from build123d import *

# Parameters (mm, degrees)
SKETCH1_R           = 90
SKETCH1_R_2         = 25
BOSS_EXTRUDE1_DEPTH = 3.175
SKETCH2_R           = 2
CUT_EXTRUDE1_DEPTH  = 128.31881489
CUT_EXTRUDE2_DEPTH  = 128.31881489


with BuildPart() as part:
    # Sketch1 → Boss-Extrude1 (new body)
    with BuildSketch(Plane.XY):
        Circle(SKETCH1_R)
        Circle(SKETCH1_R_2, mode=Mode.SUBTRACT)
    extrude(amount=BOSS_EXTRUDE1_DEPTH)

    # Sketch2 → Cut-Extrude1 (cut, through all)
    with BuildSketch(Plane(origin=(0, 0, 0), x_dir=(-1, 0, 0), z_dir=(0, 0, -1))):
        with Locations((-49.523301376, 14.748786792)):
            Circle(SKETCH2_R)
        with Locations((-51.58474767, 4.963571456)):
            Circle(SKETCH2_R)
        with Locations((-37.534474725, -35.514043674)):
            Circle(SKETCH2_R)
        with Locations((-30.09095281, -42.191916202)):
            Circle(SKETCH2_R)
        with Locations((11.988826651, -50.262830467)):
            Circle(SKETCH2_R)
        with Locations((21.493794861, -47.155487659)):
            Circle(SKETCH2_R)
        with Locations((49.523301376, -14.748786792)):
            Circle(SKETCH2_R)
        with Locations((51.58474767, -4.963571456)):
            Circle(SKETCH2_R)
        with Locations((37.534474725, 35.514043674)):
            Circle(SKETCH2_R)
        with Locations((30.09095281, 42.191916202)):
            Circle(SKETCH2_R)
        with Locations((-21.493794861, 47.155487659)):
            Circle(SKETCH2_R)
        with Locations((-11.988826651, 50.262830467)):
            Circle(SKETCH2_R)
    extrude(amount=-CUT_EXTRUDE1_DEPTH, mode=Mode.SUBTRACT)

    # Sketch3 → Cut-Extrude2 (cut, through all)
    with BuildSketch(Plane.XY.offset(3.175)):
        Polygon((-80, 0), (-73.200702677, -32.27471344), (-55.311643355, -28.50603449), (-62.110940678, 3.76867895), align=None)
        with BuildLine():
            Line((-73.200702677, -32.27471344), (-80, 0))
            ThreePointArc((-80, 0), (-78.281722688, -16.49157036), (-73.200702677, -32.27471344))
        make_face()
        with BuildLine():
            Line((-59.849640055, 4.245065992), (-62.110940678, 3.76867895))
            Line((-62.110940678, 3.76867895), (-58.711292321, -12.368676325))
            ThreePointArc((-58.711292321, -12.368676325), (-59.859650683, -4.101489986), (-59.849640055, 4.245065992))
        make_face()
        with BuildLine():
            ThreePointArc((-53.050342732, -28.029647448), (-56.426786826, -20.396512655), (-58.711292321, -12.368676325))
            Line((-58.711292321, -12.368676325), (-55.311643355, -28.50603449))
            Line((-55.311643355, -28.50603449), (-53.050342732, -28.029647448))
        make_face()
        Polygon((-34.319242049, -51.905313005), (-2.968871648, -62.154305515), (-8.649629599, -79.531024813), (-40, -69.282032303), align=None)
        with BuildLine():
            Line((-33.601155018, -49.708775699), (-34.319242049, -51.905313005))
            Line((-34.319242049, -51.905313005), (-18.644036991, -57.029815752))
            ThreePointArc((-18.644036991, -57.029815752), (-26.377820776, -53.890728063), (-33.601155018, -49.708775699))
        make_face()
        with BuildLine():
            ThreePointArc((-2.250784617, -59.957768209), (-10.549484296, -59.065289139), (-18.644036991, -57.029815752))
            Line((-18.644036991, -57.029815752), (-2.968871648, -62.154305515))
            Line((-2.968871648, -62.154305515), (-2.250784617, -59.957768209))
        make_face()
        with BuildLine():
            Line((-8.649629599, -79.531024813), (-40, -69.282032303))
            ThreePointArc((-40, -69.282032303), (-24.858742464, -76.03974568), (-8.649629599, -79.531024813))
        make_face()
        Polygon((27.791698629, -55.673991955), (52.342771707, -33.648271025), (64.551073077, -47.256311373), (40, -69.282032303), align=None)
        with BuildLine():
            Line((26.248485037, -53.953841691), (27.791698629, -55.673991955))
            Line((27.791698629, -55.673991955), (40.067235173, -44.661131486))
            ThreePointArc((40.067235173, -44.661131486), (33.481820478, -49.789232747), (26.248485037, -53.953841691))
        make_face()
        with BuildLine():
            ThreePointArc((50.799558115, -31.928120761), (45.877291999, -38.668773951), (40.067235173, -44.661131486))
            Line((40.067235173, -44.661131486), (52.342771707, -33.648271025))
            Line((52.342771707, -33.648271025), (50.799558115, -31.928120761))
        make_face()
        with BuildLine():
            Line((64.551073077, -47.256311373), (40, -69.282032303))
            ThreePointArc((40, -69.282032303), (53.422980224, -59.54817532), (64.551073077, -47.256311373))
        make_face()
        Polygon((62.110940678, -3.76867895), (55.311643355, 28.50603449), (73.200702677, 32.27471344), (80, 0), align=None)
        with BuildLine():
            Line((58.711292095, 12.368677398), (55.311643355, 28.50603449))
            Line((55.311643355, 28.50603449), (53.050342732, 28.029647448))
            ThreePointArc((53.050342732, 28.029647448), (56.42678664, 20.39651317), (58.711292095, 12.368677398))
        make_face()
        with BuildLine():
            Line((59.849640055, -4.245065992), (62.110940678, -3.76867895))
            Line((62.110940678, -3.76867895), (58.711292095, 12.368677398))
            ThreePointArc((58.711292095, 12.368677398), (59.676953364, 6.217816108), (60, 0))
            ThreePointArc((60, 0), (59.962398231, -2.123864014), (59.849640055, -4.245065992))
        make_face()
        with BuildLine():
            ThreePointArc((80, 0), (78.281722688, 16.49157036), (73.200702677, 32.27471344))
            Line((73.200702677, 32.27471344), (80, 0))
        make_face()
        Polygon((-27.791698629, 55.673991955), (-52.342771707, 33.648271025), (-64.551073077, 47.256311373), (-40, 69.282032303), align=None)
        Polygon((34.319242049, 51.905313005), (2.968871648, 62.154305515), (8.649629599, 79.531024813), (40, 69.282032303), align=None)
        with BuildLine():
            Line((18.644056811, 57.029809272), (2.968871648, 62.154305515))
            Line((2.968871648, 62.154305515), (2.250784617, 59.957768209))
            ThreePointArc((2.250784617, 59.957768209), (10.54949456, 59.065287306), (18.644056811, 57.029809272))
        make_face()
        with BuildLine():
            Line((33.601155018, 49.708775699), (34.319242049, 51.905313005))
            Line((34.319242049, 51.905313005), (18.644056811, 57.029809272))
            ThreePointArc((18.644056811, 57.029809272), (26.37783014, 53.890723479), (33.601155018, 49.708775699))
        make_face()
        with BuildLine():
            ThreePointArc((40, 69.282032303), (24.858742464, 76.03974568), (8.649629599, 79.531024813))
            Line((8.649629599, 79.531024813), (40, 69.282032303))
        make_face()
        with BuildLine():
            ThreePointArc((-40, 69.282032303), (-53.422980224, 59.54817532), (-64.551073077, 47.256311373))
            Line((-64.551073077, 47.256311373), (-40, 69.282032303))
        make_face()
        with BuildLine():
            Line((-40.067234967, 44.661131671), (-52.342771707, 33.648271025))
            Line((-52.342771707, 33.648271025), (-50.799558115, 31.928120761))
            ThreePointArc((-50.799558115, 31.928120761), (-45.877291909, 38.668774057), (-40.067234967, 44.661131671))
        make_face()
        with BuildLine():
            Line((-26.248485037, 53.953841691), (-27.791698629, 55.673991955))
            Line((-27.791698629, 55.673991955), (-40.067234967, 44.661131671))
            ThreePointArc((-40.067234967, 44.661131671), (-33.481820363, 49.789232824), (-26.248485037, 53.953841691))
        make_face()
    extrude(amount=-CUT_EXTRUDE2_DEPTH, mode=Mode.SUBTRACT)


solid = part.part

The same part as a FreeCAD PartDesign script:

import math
import FreeCAD as App
import Part
import Sketcher
Q = App.Units.Quantity

doc = App.newDocument("Part")
params = doc.addObject("Spreadsheet::Sheet", "Params")
for row, (alias, value) in enumerate([
    ("sketch1_diameter", "180 mm"),
    ("sketch1_diameter2", "50 mm"),
    ("pad1_length", "3.175 mm"),
    ("sketch2_diameter", "4 mm"),
    ("sketch3_radius", "60 mm"),
    ("sketch3_radius2", "80 mm"),
], start=1):
    params.set(f"A{row}", alias)
    params.set(f"B{row}", "=" + value)
    params.setAlias(f"B{row}", alias)

body = doc.addObject("PartDesign::Body", "Body")

sketch1 = body.newObject("Sketcher::SketchObject", "Sketch")
sketch1.AttachmentSupport = (doc.getObject("XY_Plane"), [""])
sketch1.MapMode = "FlatFace"
sketch1.addGeometry(Part.Circle(App.Vector(0, 0, 0), App.Vector(0, 0, 1), 90), False)
sketch1.addGeometry(Part.Circle(App.Vector(0, 0, 0), App.Vector(0, 0, 1), 25), False)
sketch1.addConstraint(Sketcher.Constraint("Coincident", 0, 3, -1, 1))
sketch1.addConstraint(Sketcher.Constraint("Coincident", 1, 3, -1, 1))
sketch1.addConstraint(Sketcher.Constraint("Diameter", 0, Q("180 mm")))
sketch1.addConstraint(Sketcher.Constraint("Diameter", 1, Q("50 mm")))
sketch1.setExpression("Constraints[2]", "Params.sketch1_diameter")
sketch1.setExpression("Constraints[3]", "Params.sketch1_diameter2")
pad1 = body.newObject("PartDesign::Pad", "Pad")
pad1.Profile = sketch1
pad1.setExpression("Length", "Params.pad1_length")

sketch2 = body.newObject("Sketcher::SketchObject", "Sketch001")
sketch2.AttachmentSupport = (doc.getObject("XY_Plane"), [""])
sketch2.MapMode = "FlatFace"
sketch2.addGeometry(Part.Circle(App.Vector(49.5, 14.7, 0), App.Vector(0, 0, 1), 2), False)
sketch2.addGeometry(Part.Circle(App.Vector(51.6, 5, 0), App.Vector(0, 0, 1), 2), False)
sketch2.addGeometry(Part.Circle(App.Vector(37.5, -35.5, 0), App.Vector(0, 0, 1), 2), False)
sketch2.addGeometry(Part.Circle(App.Vector(30.1, -42.2, 0), App.Vector(0, 0, 1), 2), False)
sketch2.addGeometry(Part.Circle(App.Vector(-12, -50.3, 0), App.Vector(0, 0, 1), 2), False)
sketch2.addGeometry(Part.Circle(App.Vector(-21.5, -47.2, 0), App.Vector(0, 0, 1), 2), False)
sketch2.addGeometry(Part.Circle(App.Vector(-49.5, -14.7, 0), App.Vector(0, 0, 1), 2), False)
sketch2.addGeometry(Part.Circle(App.Vector(-51.6, -5, 0), App.Vector(0, 0, 1), 2), False)
sketch2.addGeometry(Part.Circle(App.Vector(-37.5, 35.5, 0), App.Vector(0, 0, 1), 2), False)
sketch2.addGeometry(Part.Circle(App.Vector(-30.1, 42.2, 0), App.Vector(0, 0, 1), 2), False)
sketch2.addGeometry(Part.Circle(App.Vector(21.5, 47.2, 0), App.Vector(0, 0, 1), 2), False)
sketch2.addGeometry(Part.Circle(App.Vector(12, 50.3, 0), App.Vector(0, 0, 1), 2), False)
sketch2.addConstraint(Sketcher.Constraint("Equal", 0, 1))
sketch2.addConstraint(Sketcher.Constraint("Equal", 1, 2))
sketch2.addConstraint(Sketcher.Constraint("Equal", 2, 3))
sketch2.addConstraint(Sketcher.Constraint("Equal", 3, 4))
sketch2.addConstraint(Sketcher.Constraint("Equal", 4, 5))
sketch2.addConstraint(Sketcher.Constraint("Equal", 5, 6))
sketch2.addConstraint(Sketcher.Constraint("Equal", 6, 7))
sketch2.addConstraint(Sketcher.Constraint("Equal", 7, 8))
sketch2.addConstraint(Sketcher.Constraint("Equal", 8, 9))
sketch2.addConstraint(Sketcher.Constraint("Equal", 9, 10))
sketch2.addConstraint(Sketcher.Constraint("Equal", 10, 11))
sketch2.addConstraint(Sketcher.Constraint("Symmetric", 0, 3, 6, 3, -1, 1))
sketch2.addConstraint(Sketcher.Constraint("Symmetric", 1, 3, 7, 3, -1, 1))
sketch2.addConstraint(Sketcher.Constraint("Symmetric", 2, 3, 8, 3, -1, 1))
sketch2.addConstraint(Sketcher.Constraint("Symmetric", 3, 3, 9, 3, -1, 1))
sketch2.addConstraint(Sketcher.Constraint("Symmetric", 5, 3, 10, 3, -1, 1))
sketch2.addConstraint(Sketcher.Constraint("Symmetric", 4, 3, 11, 3, -1, 1))
sketch2.addConstraint(Sketcher.Constraint("Diameter", 0, Q("4 mm")))
sketch2.addConstraint(Sketcher.Constraint("DistanceX", -1, 1, 0, 3, Q("49.523301 mm")))
sketch2.addConstraint(Sketcher.Constraint("DistanceX", 4, 3, 2, 3, Q("49.523301 mm")))
sketch2.addConstraint(Sketcher.Constraint("DistanceY", 4, 3, 1, 3, Q("55.226402 mm")))
sketch2.addConstraint(Sketcher.Constraint("DistanceY", 5, 3, 6, 3, Q("32.406701 mm")))
sketch2.addConstraint(Sketcher.Constraint("DistanceX", 7, 3, 3, 3, Q("81.6757 mm")))
sketch2.addConstraint(Sketcher.Constraint("DistanceY", -1, 1, 1, 3, Q("4.963571 mm")))
sketch2.addConstraint(Sketcher.Constraint("DistanceY", 2, 3, 0, 3, Q("50.26283 mm")))
sketch2.addConstraint(Sketcher.Constraint("DistanceX", 3, 3, 2, 3, Q("7.443522 mm")))
sketch2.addConstraint(Sketcher.Constraint("DistanceX", 3, 3, 0, 3, Q("19.432349 mm")))
sketch2.addConstraint(Sketcher.Constraint("DistanceX", 5, 3, 4, 3, Q("9.504968 mm")))
sketch2.addConstraint(Sketcher.Constraint("DistanceY", 5, 3, 3, 3, Q("4.963571 mm")))
sketch2.addConstraint(Sketcher.Constraint("DistanceY", 5, 3, 1, 3, Q("52.119059 mm")))
sketch2.setExpression("Constraints[17]", "Params.sketch2_diameter")
pocket1 = body.newObject("PartDesign::Pocket", "Pocket")
pocket1.Profile = sketch2
pocket1.Type = "ThroughAll"
pocket1.Reversed = True

sketch3 = body.newObject("Sketcher::SketchObject", "Sketch002")
sketch3.AttachmentSupport = (doc.getObject("XY_Plane"), [""])
sketch3.MapMode = "FlatFace"
sketch3.AttachmentOffset = App.Placement(App.Vector(0, 0, 3.175), App.Rotation())
sketch3.addGeometry(Part.LineSegment(App.Vector(-73.2, -32.3, 0), App.Vector(-55.3, -28.5, 0)), False)
sketch3.addGeometry(Part.LineSegment(App.Vector(-55.3, -28.5, 0), App.Vector(-53.1, -28, 0)), False)
sketch3.addGeometry(Part.ArcOfCircle(Part.Circle(App.Vector(0, 0, 0), App.Vector(0, 0, 1), 60), math.radians(-168.1), math.radians(-152.15)), False)
sketch3.addGeometry(Part.ArcOfCircle(Part.Circle(App.Vector(0, 0, 0), App.Vector(0, 0, 1), 60), math.radians(175.94), math.radians(191.9)), False)
sketch3.addGeometry(Part.LineSegment(App.Vector(-59.8, 4.2, 0), App.Vector(-62.1, 3.8, 0)), False)
sketch3.addGeometry(Part.LineSegment(App.Vector(-62.1, 3.8, 0), App.Vector(-80, 0, 0)), False)
sketch3.addGeometry(Part.ArcOfCircle(Part.Circle(App.Vector(0, 0, 0), App.Vector(0, 0, 1), 80), math.radians(-180), math.radians(-156)), False)
sketch3.addGeometry(Part.LineSegment(App.Vector(-8.6, -79.5, 0), App.Vector(-3, -62.2, 0)), False)
sketch3.addGeometry(Part.LineSegment(App.Vector(-3, -62.2, 0), App.Vector(-2.3, -60, 0)), False)
sketch3.addGeometry(Part.ArcOfCircle(Part.Circle(App.Vector(0, 0, 0), App.Vector(0, 0, 1), 60), math.radians(-108.1), math.radians(-92.15)), False)
sketch3.addGeometry(Part.ArcOfCircle(Part.Circle(App.Vector(0, 0, 0), App.Vector(0, 0, 1), 60), math.radians(-124.06), math.radians(-108.1)), False)
sketch3.addGeometry(Part.LineSegment(App.Vector(-33.6, -49.7, 0), App.Vector(-34.3, -51.9, 0)), False)
sketch3.addGeometry(Part.LineSegment(App.Vector(-34.3, -51.9, 0), App.Vector(-40, -69.3, 0)), False)
sketch3.addGeometry(Part.ArcOfCircle(Part.Circle(App.Vector(0, 0, 0), App.Vector(0, 0, 1), 80), math.radians(-120), math.radians(-96)), False)
sketch3.addGeometry(Part.LineSegment(App.Vector(64.6, -47.3, 0), App.Vector(52.3, -33.6, 0)), False)
sketch3.addGeometry(Part.LineSegment(App.Vector(52.3, -33.6, 0), App.Vector(50.8, -31.9, 0)), False)
sketch3.addGeometry(Part.ArcOfCircle(Part.Circle(App.Vector(0, 0, 0), App.Vector(0, 0, 1), 60), math.radians(-48.1), math.radians(-32.15)), False)
sketch3.addGeometry(Part.ArcOfCircle(Part.Circle(App.Vector(0, 0, 0), App.Vector(0, 0, 1), 60), math.radians(-64.06), math.radians(-48.1)), False)
sketch3.addGeometry(Part.LineSegment(App.Vector(26.2, -54, 0), App.Vector(27.8, -55.7, 0)), False)
sketch3.addGeometry(Part.LineSegment(App.Vector(27.8, -55.7, 0), App.Vector(40, -69.3, 0)), False)
sketch3.addGeometry(Part.ArcOfCircle(Part.Circle(App.Vector(0, 0, 0), App.Vector(0, 0, 1), 80), math.radians(-60), math.radians(-36)), False)
sketch3.addGeometry(Part.ArcOfCircle(Part.Circle(App.Vector(0, 0, 0), App.Vector(0, 0, 1), 60), math.radians(11.9), math.radians(27.85)), False)
sketch3.addGeometry(Part.ArcOfCircle(Part.Circle(App.Vector(0, 0, 0), App.Vector(0, 0, 1), 60), math.radians(0), math.radians(11.9)), False)
sketch3.addGeometry(Part.ArcOfCircle(Part.Circle(App.Vector(0, 0, 0), App.Vector(0, 0, 1), 60), math.radians(-4.06), math.radians(0)), False)
sketch3.addGeometry(Part.LineSegment(App.Vector(59.8, -4.2, 0), App.Vector(62.1, -3.8, 0)), False)
sketch3.addGeometry(Part.LineSegment(App.Vector(62.1, -3.8, 0), App.Vector(80, 0, 0)), False)
sketch3.addGeometry(Part.ArcOfCircle(Part.Circle(App.Vector(0, 0, 0), App.Vector(0, 0, 1), 80), math.radians(0), math.radians(24)), False)
sketch3.addGeometry(Part.LineSegment(App.Vector(73.2, 32.3, 0), App.Vector(55.3, 28.5, 0)), False)
sketch3.addGeometry(Part.LineSegment(App.Vector(55.3, 28.5, 0), App.Vector(53.1, 28, 0)), False)
sketch3.addGeometry(Part.ArcOfCircle(Part.Circle(App.Vector(0, 0, 0), App.Vector(0, 0, 1), 60), math.radians(131.9), math.radians(147.85)), False)
sketch3.addGeometry(Part.ArcOfCircle(Part.Circle(App.Vector(0, 0, 0), App.Vector(0, 0, 1), 60), math.radians(115.94), math.radians(131.9)), False)
sketch3.addGeometry(Part.LineSegment(App.Vector(-26.2, 54, 0), App.Vector(-27.8, 55.7, 0)), False)
sketch3.addGeometry(Part.LineSegment(App.Vector(-27.8, 55.7, 0), App.Vector(-40, 69.3, 0)), False)
sketch3.addGeometry(Part.ArcOfCircle(Part.Circle(App.Vector(0, 0, 0), App.Vector(0, 0, 1), 80), math.radians(120), math.radians(144)), False)
sketch3.addGeometry(Part.LineSegment(App.Vector(-64.6, 47.3, 0), App.Vector(-52.3, 33.6, 0)), False)
sketch3.addGeometry(Part.LineSegment(App.Vector(-52.3, 33.6, 0), App.Vector(-50.8, 31.9, 0)), False)
sketch3.addGeometry(Part.ArcOfCircle(Part.Circle(App.Vector(0, 0, 0), App.Vector(0, 0, 1), 60), math.radians(71.9), math.radians(87.85)), False)
sketch3.addGeometry(Part.ArcOfCircle(Part.Circle(App.Vector(0, 0, 0), App.Vector(0, 0, 1), 60), math.radians(55.94), math.radians(71.9)), False)
sketch3.addGeometry(Part.LineSegment(App.Vector(33.6, 49.7, 0), App.Vector(34.3, 51.9, 0)), False)
sketch3.addGeometry(Part.LineSegment(App.Vector(34.3, 51.9, 0), App.Vector(40, 69.3, 0)), False)
sketch3.addGeometry(Part.ArcOfCircle(Part.Circle(App.Vector(0, 0, 0), App.Vector(0, 0, 1), 80), math.radians(60), math.radians(84)), False)
sketch3.addGeometry(Part.LineSegment(App.Vector(8.6, 79.5, 0), App.Vector(3, 62.2, 0)), False)
sketch3.addGeometry(Part.LineSegment(App.Vector(3, 62.2, 0), App.Vector(2.3, 60, 0)), False)
sketch3.addConstraint(Sketcher.Constraint("Coincident", 0, 2, 1, 1))
sketch3.addConstraint(Sketcher.Constraint("Coincident", 1, 2, 2, 2))
sketch3.addConstraint(Sketcher.Constraint("Tangent", 2, 1, 3, 2))
sketch3.addConstraint(Sketcher.Constraint("Coincident", 3, 1, 4, 1))
sketch3.addConstraint(Sketcher.Constraint("Coincident", 4, 2, 5, 1))
sketch3.addConstraint(Sketcher.Constraint("Coincident", 5, 2, 6, 1))
sketch3.addConstraint(Sketcher.Constraint("Coincident", 6, 2, 0, 1))
sketch3.addConstraint(Sketcher.Constraint("Coincident", 7, 2, 8, 1))
sketch3.addConstraint(Sketcher.Constraint("Coincident", 8, 2, 9, 2))
sketch3.addConstraint(Sketcher.Constraint("Tangent", 9, 1, 10, 2))
sketch3.addConstraint(Sketcher.Constraint("Coincident", 10, 1, 11, 1))
sketch3.addConstraint(Sketcher.Constraint("Coincident", 11, 2, 12, 1))
sketch3.addConstraint(Sketcher.Constraint("Coincident", 12, 2, 13, 1))
sketch3.addConstraint(Sketcher.Constraint("Coincident", 13, 2, 7, 1))
sketch3.addConstraint(Sketcher.Constraint("Coincident", 14, 2, 15, 1))
sketch3.addConstraint(Sketcher.Constraint("Coincident", 15, 2, 16, 2))
sketch3.addConstraint(Sketcher.Constraint("Tangent", 16, 1, 17, 2))
sketch3.addConstraint(Sketcher.Constraint("Coincident", 17, 1, 18, 1))
sketch3.addConstraint(Sketcher.Constraint("Coincident", 18, 2, 19, 1))
sketch3.addConstraint(Sketcher.Constraint("Coincident", 19, 2, 20, 1))
sketch3.addConstraint(Sketcher.Constraint("Coincident", 20, 2, 14, 1))
sketch3.addConstraint(Sketcher.Constraint("Tangent", 21, 1, 22, 2))
sketch3.addConstraint(Sketcher.Constraint("Tangent", 22, 1, 23, 2))
sketch3.addConstraint(Sketcher.Constraint("Coincident", 23, 1, 24, 1))
sketch3.addConstraint(Sketcher.Constraint("Coincident", 24, 2, 25, 1))
sketch3.addConstraint(Sketcher.Constraint("Coincident", 25, 2, 26, 1))
sketch3.addConstraint(Sketcher.Constraint("Coincident", 26, 2, 27, 1))
sketch3.addConstraint(Sketcher.Constraint("Coincident", 27, 2, 28, 1))
sketch3.addConstraint(Sketcher.Constraint("Coincident", 28, 2, 21, 2))
sketch3.addConstraint(Sketcher.Constraint("Tangent", 29, 1, 30, 2))
sketch3.addConstraint(Sketcher.Constraint("Coincident", 30, 1, 31, 1))
sketch3.addConstraint(Sketcher.Constraint("Coincident", 31, 2, 32, 1))
sketch3.addConstraint(Sketcher.Constraint("Coincident", 32, 2, 33, 1))
sketch3.addConstraint(Sketcher.Constraint("Coincident", 33, 2, 34, 1))
sketch3.addConstraint(Sketcher.Constraint("Coincident", 34, 2, 35, 1))
sketch3.addConstraint(Sketcher.Constraint("Coincident", 35, 2, 29, 2))
sketch3.addConstraint(Sketcher.Constraint("Tangent", 36, 1, 37, 2))
sketch3.addConstraint(Sketcher.Constraint("Coincident", 37, 1, 38, 1))
sketch3.addConstraint(Sketcher.Constraint("Coincident", 38, 2, 39, 1))
sketch3.addConstraint(Sketcher.Constraint("Coincident", 39, 2, 40, 1))
sketch3.addConstraint(Sketcher.Constraint("Coincident", 40, 2, 41, 1))
sketch3.addConstraint(Sketcher.Constraint("Coincident", 41, 2, 42, 1))
sketch3.addConstraint(Sketcher.Constraint("Coincident", 42, 2, 36, 2))
sketch3.addConstraint(Sketcher.Constraint("Coincident", 2, 3, -1, 1))
sketch3.addConstraint(Sketcher.Constraint("Coincident", 6, 3, -1, 1))
sketch3.addConstraint(Sketcher.Constraint("Coincident", 9, 3, -1, 1))
sketch3.addConstraint(Sketcher.Constraint("Coincident", 13, 3, -1, 1))
sketch3.addConstraint(Sketcher.Constraint("Coincident", 16, 3, -1, 1))
sketch3.addConstraint(Sketcher.Constraint("Coincident", 20, 3, -1, 1))
sketch3.addConstraint(Sketcher.Constraint("Coincident", 21, 3, -1, 1))
sketch3.addConstraint(Sketcher.Constraint("Coincident", 23, 3, -1, 1))
sketch3.addConstraint(Sketcher.Constraint("Coincident", 26, 3, -1, 1))
sketch3.addConstraint(Sketcher.Constraint("Coincident", 29, 3, -1, 1))
sketch3.addConstraint(Sketcher.Constraint("Coincident", 33, 3, -1, 1))
sketch3.addConstraint(Sketcher.Constraint("Coincident", 36, 3, -1, 1))
sketch3.addConstraint(Sketcher.Constraint("Coincident", 40, 3, -1, 1))
sketch3.addConstraint(Sketcher.Constraint("Equal", 2, 3))
sketch3.addConstraint(Sketcher.Constraint("Equal", 3, 9))
sketch3.addConstraint(Sketcher.Constraint("Equal", 9, 10))
sketch3.addConstraint(Sketcher.Constraint("Equal", 6, 13))
sketch3.addConstraint(Sketcher.Constraint("Equal", 10, 16))
sketch3.addConstraint(Sketcher.Constraint("Equal", 16, 17))
sketch3.addConstraint(Sketcher.Constraint("Equal", 13, 20))
sketch3.addConstraint(Sketcher.Constraint("Equal", 17, 21))
sketch3.addConstraint(Sketcher.Constraint("Equal", 20, 26))
sketch3.addConstraint(Sketcher.Constraint("Equal", 23, 29))
sketch3.addConstraint(Sketcher.Constraint("Equal", 29, 30))
sketch3.addConstraint(Sketcher.Constraint("Equal", 26, 33))
sketch3.addConstraint(Sketcher.Constraint("Equal", 30, 36))
sketch3.addConstraint(Sketcher.Constraint("Equal", 36, 37))
sketch3.addConstraint(Sketcher.Constraint("Equal", 33, 40))
sketch3.addConstraint(Sketcher.Constraint("Symmetric", 4, 2, 24, 2, -1, 1))
sketch3.addConstraint(Sketcher.Constraint("Symmetric", 0, 2, 27, 2, -1, 1))
sketch3.addConstraint(Sketcher.Constraint("Symmetric", 18, 2, 31, 2, -1, 1))
sketch3.addConstraint(Sketcher.Constraint("Symmetric", 14, 2, 34, 2, -1, 1))
sketch3.addConstraint(Sketcher.Constraint("Symmetric", 11, 2, 38, 2, -1, 1))
sketch3.addConstraint(Sketcher.Constraint("Symmetric", 7, 2, 41, 2, -1, 1))
sketch3.addConstraint(Sketcher.Constraint("PointOnObject", 5, 2, -1))
sketch3.addConstraint(Sketcher.Constraint("PointOnObject", 22, 1, -1))
sketch3.addConstraint(Sketcher.Constraint("PointOnObject", 25, 2, -1))
sketch3.addConstraint(Sketcher.Constraint("Parallel", 0, 1))
sketch3.addConstraint(Sketcher.Constraint("Parallel", 1, 4))
sketch3.addConstraint(Sketcher.Constraint("Parallel", 4, 5))
sketch3.addConstraint(Sketcher.Constraint("Parallel", 7, 8))
sketch3.addConstraint(Sketcher.Constraint("Parallel", 8, 11))
sketch3.addConstraint(Sketcher.Constraint("Parallel", 11, 12))
sketch3.addConstraint(Sketcher.Constraint("Parallel", 14, 15))
sketch3.addConstraint(Sketcher.Constraint("Parallel", 15, 18))
sketch3.addConstraint(Sketcher.Constraint("Parallel", 18, 19))
sketch3.addConstraint(Sketcher.Constraint("Parallel", 5, 24))
sketch3.addConstraint(Sketcher.Constraint("Parallel", 25, 27))
sketch3.addConstraint(Sketcher.Constraint("Parallel", 27, 28))
sketch3.addConstraint(Sketcher.Constraint("Parallel", 19, 31))
sketch3.addConstraint(Sketcher.Constraint("Parallel", 31, 32))
sketch3.addConstraint(Sketcher.Constraint("Parallel", 32, 34))
sketch3.addConstraint(Sketcher.Constraint("Parallel", 34, 35))
sketch3.addConstraint(Sketcher.Constraint("Parallel", 12, 38))
sketch3.addConstraint(Sketcher.Constraint("Parallel", 38, 39))
sketch3.addConstraint(Sketcher.Constraint("Parallel", 39, 41))
sketch3.addConstraint(Sketcher.Constraint("Parallel", 41, 42))
sketch3.addConstraint(Sketcher.Constraint("Horizontal", 12, 2, 19, 2))
sketch3.addConstraint(Sketcher.Constraint("Equal", 1, 4))
sketch3.addConstraint(Sketcher.Constraint("Equal", 0, 5))
sketch3.addConstraint(Sketcher.Constraint("Equal", 5, 7))
sketch3.addConstraint(Sketcher.Constraint("Equal", 4, 8))
sketch3.addConstraint(Sketcher.Constraint("Equal", 8, 11))
sketch3.addConstraint(Sketcher.Constraint("Equal", 7, 12))
sketch3.addConstraint(Sketcher.Constraint("Equal", 12, 14))
sketch3.addConstraint(Sketcher.Constraint("Equal", 11, 15))
sketch3.addConstraint(Sketcher.Constraint("Equal", 15, 18))
sketch3.addConstraint(Sketcher.Constraint("Equal", 14, 19))
sketch3.addConstraint(Sketcher.Constraint("Radius", 2, Q("60 mm")))
sketch3.addConstraint(Sketcher.Constraint("Radius", 6, Q("80 mm")))
sketch3.addConstraint(Sketcher.Constraint("DistanceX", 12, 2, -1, 1, Q("40 mm")))
sketch3.addConstraint(Sketcher.Constraint("DistanceX", -1, 1, 18, 2, Q("27.791699 mm")))
sketch3.addConstraint(Sketcher.Constraint("DistanceX", 4, 2, -1, 1, Q("62.110941 mm")))
sketch3.addConstraint(Sketcher.Constraint("DistanceY", 16, 1, -1, 1, Q("44.661131 mm")))
sketch3.addConstraint(Sketcher.Constraint("DistanceY", -1, 1, 29, 1, Q("44.661132 mm")))
sketch3.addConstraint(Sketcher.Constraint("DistanceY", -1, 1, 36, 1, Q("57.029809 mm")))
sketch3.addConstraint(Sketcher.Constraint("DistanceX", 2, 1, -1, 1, Q("58.711292 mm")))
sketch3.addConstraint(Sketcher.Constraint("DistanceX", 9, 1, -1, 1, Q("18.644037 mm")))
sketch3.addConstraint(Sketcher.Constraint("DistanceX", -1, 1, 21, 1, Q("58.711292 mm")))
sketch3.setExpression("Constraints[111]", "Params.sketch3_radius")
sketch3.setExpression("Constraints[112]", "Params.sketch3_radius2")
pocket2 = body.newObject("PartDesign::Pocket", "Pocket001")
pocket2.Profile = sketch3
pocket2.Type = "ThroughAll"

doc.recompute()
